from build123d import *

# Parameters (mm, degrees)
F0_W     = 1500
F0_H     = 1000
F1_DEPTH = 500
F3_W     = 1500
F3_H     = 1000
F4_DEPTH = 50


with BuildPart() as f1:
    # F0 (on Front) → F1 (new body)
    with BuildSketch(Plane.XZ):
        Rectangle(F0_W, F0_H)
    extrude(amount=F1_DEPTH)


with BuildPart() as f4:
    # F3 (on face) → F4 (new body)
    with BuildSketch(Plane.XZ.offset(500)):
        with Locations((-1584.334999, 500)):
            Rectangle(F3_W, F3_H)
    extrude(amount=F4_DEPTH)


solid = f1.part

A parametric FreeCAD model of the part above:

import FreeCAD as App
import Part
import Sketcher
from FreeCAD import Vector
Q = App.Units.Quantity

doc = App.newDocument("Part")
params = doc.addObject("Spreadsheet::Sheet", "Params")
for row, (alias, value) in enumerate([
    ("sketch1_width", "1500 mm"),
    ("sketch1_height", "1000 mm"),
    ("pad1_length", "500 mm"),
    ("sketch2_width", "1500 mm"),
    ("sketch2_height", "1000 mm"),
    ("pad2_length", "50 mm"),
], start=1):
    params.set(f"A{row}", alias)
    params.set(f"B{row}", "=" + value)
    params.setAlias(f"B{row}", alias)

body = doc.addObject("PartDesign::Body", "Body")

sketch1 = body.newObject("Sketcher::SketchObject", "Sketch")
sketch1.AttachmentSupport = (doc.getObject("XZ_Plane"), [""])
sketch1.MapMode = "FlatFace"
sketch1.addGeometry([
    Part.LineSegment(Vector(-750, 500, 0), Vector(-750, -500, 0)),
    Part.LineSegment(Vector(-750, -500, 0), Vector(750, -500, 0)),
    Part.LineSegment(Vector(750, -500, 0), Vector(750, 500, 0)),
    Part.LineSegment(Vector(750, 500, 0), Vector(-750, 500, 0)),
], False)
sketch1.addConstraint([
    Sketcher.Constraint("Coincident", 0, 2, 1, 1),
    Sketcher.Constraint("Coincident", 1, 2, 2, 1),
    Sketcher.Constraint("Coincident", 2, 2, 3, 1),
    Sketcher.Constraint("Coincident", 3, 2, 0, 1),
    Sketcher.Constraint("Vertical", 0),
    Sketcher.Constraint("Horizontal", 1),
    Sketcher.Constraint("Vertical", 2),
    Sketcher.Constraint("Horizontal", 3),
    Sketcher.Constraint("Symmetric", 0, 2, 2, 2, -1, 1),
    Sketcher.Constraint("DistanceX", 1, 1, 1, 2, Q("1500 mm")),
    Sketcher.Constraint("DistanceY", 0, 2, 0, 1, Q("1000 mm")),
])
sketch1.setExpression("Constraints[9]", "Params.sketch1_width")
sketch1.setExpression("Constraints[10]", "Params.sketch1_height")
pad1 = body.newObject("PartDesign::Pad", "Pad")
pad1.Profile = sketch1
pad1.setExpression("Length", "Params.pad1_length")
body2 = doc.addObject("PartDesign::Body", "Body001")

sketch2 = body2.newObject("Sketcher::SketchObject", "Sketch001")
sketch2.AttachmentSupport = (doc.getObject("XZ_Plane001"), [""])
sketch2.MapMode = "FlatFace"
sketch2.AttachmentOffset = App.Placement(Vector(0, 0, 500), App.Rotation())
sketch2.addGeometry([
    Part.LineSegment(Vector(-2334.334999, 1000, 0), Vector(-2334.334999, 0, 0)),
    Part.LineSegment(Vector(-2334.334999, 0, 0), Vector(-834.334999, 0, 0)),
    Part.LineSegment(Vector(-834.334999, 0, 0), Vector(-834.334999, 1000, 0)),
    Part.LineSegment(Vector(-834.334999, 1000, 0), Vector(-2334.334999, 1000, 0)),
], False)
sketch2.addConstraint([
    Sketcher.Constraint("Coincident", 0, 2, 1, 1),
    Sketcher.Constraint("Coincident", 1, 2, 2, 1),
    Sketcher.Constraint("Coincident", 2, 2, 3, 1),
    Sketcher.Constraint("Coincident", 3, 2, 0, 1),
    Sketcher.Constraint("Vertical", 0),
    Sketcher.Constraint("Horizontal", 1),
    Sketcher.Constraint("Vertical", 2),
    Sketcher.Constraint("Horizontal", 3),
    Sketcher.Constraint("PointOnObject", 0, 2, -1),
    Sketcher.Constraint("DistanceX", 1, 1, 1, 2, Q("1500 mm")),
    Sketcher.Constraint("DistanceY", 0, 2, 0, 1, Q("1000 mm")),
    Sketcher.Constraint("DistanceX", 0, 2, -1, 1, Q("2334.334999 mm")),
])
sketch2.setExpression("Constraints[9]", "Params.sketch2_width")
sketch2.setExpression("Constraints[10]", "Params.sketch2_height")
pad2 = body2.newObject("PartDesign::Pad", "Pad001")
pad2.Profile = sketch2
pad2.setExpression("Length", "Params.pad2_length")
body2.Visibility = False

doc.recompute()
